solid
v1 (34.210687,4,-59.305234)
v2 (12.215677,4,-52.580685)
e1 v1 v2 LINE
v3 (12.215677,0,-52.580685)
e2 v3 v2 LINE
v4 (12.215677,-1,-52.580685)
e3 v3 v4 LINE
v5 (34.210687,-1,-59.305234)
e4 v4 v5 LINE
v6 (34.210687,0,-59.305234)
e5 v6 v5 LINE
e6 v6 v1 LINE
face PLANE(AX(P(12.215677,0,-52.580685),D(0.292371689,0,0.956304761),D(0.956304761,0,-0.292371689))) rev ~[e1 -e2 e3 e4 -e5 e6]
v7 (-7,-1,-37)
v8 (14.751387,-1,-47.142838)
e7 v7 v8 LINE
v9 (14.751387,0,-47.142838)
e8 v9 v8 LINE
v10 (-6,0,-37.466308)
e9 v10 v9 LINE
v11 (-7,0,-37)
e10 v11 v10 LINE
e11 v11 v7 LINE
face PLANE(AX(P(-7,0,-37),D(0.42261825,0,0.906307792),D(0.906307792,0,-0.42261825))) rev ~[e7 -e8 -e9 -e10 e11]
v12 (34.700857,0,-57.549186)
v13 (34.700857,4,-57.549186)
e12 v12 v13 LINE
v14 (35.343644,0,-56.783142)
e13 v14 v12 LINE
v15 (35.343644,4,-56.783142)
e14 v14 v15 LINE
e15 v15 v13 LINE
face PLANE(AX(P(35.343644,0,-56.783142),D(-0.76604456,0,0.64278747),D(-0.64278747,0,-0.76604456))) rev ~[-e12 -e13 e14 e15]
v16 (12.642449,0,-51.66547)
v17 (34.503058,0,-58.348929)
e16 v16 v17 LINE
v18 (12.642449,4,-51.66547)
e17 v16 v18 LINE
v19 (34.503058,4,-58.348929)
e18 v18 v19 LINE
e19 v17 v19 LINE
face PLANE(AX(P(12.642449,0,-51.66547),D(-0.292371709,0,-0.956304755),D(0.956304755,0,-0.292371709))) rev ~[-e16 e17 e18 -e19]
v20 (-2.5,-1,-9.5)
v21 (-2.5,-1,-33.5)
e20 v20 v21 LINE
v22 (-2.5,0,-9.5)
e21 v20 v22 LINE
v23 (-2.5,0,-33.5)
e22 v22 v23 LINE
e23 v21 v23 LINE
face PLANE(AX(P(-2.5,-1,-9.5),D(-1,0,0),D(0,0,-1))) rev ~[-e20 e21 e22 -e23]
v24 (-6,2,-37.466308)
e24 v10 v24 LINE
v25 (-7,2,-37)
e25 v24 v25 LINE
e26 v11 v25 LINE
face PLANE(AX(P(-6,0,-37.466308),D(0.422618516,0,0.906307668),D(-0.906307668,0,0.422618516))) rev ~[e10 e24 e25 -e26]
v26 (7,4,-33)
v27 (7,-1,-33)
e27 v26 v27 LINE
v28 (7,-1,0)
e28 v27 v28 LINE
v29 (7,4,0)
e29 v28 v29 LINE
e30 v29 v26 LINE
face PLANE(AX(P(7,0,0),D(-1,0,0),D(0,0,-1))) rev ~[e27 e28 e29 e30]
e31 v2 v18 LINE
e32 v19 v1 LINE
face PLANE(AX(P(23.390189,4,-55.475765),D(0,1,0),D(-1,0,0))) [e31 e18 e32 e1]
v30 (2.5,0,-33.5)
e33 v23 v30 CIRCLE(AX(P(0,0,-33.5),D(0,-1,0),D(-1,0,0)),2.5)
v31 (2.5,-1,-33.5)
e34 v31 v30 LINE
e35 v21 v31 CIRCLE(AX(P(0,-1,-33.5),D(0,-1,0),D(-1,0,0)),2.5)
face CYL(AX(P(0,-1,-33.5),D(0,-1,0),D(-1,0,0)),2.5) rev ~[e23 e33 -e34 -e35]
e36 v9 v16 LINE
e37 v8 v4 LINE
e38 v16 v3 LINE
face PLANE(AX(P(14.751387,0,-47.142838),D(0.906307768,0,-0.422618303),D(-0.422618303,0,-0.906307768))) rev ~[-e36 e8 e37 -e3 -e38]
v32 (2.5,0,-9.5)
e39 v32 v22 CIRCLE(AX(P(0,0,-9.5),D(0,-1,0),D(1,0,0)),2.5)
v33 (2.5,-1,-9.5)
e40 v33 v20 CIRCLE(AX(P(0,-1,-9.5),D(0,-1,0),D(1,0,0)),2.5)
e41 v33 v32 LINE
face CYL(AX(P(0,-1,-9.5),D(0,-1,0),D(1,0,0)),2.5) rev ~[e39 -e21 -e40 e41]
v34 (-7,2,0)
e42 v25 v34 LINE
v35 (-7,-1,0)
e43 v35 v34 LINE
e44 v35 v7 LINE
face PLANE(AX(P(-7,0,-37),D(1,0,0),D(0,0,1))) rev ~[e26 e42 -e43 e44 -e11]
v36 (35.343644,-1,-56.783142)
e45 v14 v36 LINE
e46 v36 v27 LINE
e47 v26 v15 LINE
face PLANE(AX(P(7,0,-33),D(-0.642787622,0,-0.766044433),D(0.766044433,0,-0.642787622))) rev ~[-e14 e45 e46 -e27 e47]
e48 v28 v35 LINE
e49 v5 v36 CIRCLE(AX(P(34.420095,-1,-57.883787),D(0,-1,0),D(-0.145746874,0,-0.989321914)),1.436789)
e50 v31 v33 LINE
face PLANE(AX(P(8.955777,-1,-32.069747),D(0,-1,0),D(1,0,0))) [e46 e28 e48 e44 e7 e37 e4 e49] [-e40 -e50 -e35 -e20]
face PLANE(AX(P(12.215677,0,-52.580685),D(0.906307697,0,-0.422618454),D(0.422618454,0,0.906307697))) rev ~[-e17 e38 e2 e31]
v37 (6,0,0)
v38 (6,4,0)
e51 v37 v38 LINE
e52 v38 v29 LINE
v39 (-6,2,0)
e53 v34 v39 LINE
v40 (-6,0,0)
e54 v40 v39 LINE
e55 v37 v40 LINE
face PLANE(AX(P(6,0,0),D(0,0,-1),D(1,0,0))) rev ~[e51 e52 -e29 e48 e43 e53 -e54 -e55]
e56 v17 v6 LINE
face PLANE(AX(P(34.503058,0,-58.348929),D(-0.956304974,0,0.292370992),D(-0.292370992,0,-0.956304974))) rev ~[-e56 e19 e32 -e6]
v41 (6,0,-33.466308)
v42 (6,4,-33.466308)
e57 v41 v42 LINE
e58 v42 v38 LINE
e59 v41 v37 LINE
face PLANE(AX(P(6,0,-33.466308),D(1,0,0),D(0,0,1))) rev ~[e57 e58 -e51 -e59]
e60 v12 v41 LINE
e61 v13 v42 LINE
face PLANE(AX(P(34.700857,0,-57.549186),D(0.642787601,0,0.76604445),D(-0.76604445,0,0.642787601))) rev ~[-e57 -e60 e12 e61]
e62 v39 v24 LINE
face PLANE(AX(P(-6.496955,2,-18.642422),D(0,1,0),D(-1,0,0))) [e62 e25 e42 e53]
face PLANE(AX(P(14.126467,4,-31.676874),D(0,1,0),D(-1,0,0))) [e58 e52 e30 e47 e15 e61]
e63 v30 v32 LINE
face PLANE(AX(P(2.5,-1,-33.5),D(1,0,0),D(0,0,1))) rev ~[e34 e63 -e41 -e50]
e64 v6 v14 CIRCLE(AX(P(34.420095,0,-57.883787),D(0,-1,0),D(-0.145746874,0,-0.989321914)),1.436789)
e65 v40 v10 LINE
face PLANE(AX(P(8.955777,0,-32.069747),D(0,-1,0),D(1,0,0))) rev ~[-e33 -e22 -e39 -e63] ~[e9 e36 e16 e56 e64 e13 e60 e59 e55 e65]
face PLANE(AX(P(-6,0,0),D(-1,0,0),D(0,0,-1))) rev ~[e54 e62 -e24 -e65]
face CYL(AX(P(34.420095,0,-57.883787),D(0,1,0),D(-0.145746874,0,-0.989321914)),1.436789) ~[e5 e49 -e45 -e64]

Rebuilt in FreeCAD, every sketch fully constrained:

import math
import FreeCAD as App
import Part
import Sketcher
from FreeCAD import Vector
Q = App.Units.Quantity


def add_polygon(sketch, points):
    """Adds a closed chain of lines whose ends are joined by coincident constraints."""
    first, n = sketch.GeometryCount, len(points)
    for a, b in zip(points, points[1:] + points[:1]):
        sketch.addGeometry(Part.LineSegment(App.Vector(*a, 0), App.Vector(*b, 0)), False)
    for i in range(n):
        sketch.addConstraint(Sketcher.Constraint("Coincident", first + i, 2, first + (i + 1) % n, 1))

doc = App.newDocument("Part")
params = doc.addObject("Spreadsheet::Sheet", "Params")
for row, (alias, value) in enumerate([
    ("sketch1_width", "14 mm"),
    ("sketch1_height", "33 mm"),
    ("sketch1_height2", "37 mm"),
    ("sketch1_length", "24 mm"),
    ("sketch1_length2", "6 mm"),
    ("pad1_length", "1 mm"),
    ("sketch2_width", "1 mm"),
    ("sketch2_height", "37 mm"),
    ("pad2_length", "2 mm"),
    ("sketch3_width", "1 mm"),
    ("sketch3_height", "33 mm"),
    ("sketch3_length", "37 mm"),
    ("sketch3_length2", "0.999999 mm"),
    ("sketch3_length3", "23.000001 mm"),
    ("pad3_length", "4 mm"),
    ("sketch4_radius", "2.5 mm"),
    ("sketch4_height", "24 mm"),
    ("pocket1_length", "25 mm"),
], start=1):
    params.set(f"A{row}", alias)
    params.set(f"B{row}", "=" + value)
    params.setAlias(f"B{row}", alias)

body = doc.addObject("PartDesign::Body", "Body")

# Sketch on XZ plane
sketch1 = body.newObject("Sketcher::SketchObject", "Sketch")
sketch1.AttachmentSupport = (doc.getObject("XZ_Plane"), [""])
sketch1.MapMode = "FlatFace"
sketch1.addGeometry([
    Part.LineSegment(Vector(7, -33, 0), Vector(7, 0, 0)),  # 0
    Part.LineSegment(Vector(7, 0, 0), Vector(-7, 0, 0)),  # 1
    Part.LineSegment(Vector(-7, 0, 0), Vector(-7, -37, 0)),  # 2
    Part.LineSegment(Vector(-7, -37, 0), Vector(14.8, -47.1, 0)),  # 3
    Part.LineSegment(Vector(14.8, -47.1, 0), Vector(12.2, -52.6, 0)),  # 4
    Part.LineSegment(Vector(12.2, -52.6, 0), Vector(34.2, -59.3, 0)),  # 5
    Part.ArcOfCircle(Part.Circle(Vector(34.4, -57.9, 0), Vector(0, 0, 1), 1.4), math.radians(-98), math.radians(50)),  # 6
    Part.LineSegment(Vector(35.3, -56.8, 0), Vector(7, -33, 0)),  # 7
], False)
sketch1.addConstraint([
    Sketcher.Constraint("Coincident", 0, 2, 1, 1),
    Sketcher.Constraint("Coincident", 1, 2, 2, 1),
    Sketcher.Constraint("Coincident", 2, 2, 3, 1),
    Sketcher.Constraint("Coincident", 3, 2, 4, 1),
    Sketcher.Constraint("Coincident", 4, 2, 5, 1),
    Sketcher.Constraint("Coincident", 5, 2, 6, 1),
    Sketcher.Constraint("Tangent", 6, 2, 7, 1),
    Sketcher.Constraint("Coincident", 7, 2, 0, 1),
    Sketcher.Constraint("Vertical", 0),
    Sketcher.Constraint("Horizontal", 1),
    Sketcher.Constraint("Vertical", 2),
    Sketcher.Constraint("Symmetric", 0, 2, 1, 2, -1, 1),
    Sketcher.Constraint("Perpendicular", 3, 4),
    Sketcher.Constraint("DistanceX", 1, 2, 1, 1, 14.0),
    Sketcher.Constraint("DistanceY", 0, 1, 0, 2, 33.0),
    Sketcher.Constraint("DistanceY", 2, 2, 2, 1, 37.0),
    Sketcher.Constraint("Angle", 3, Q("-24.999999 deg")),
    Sketcher.Constraint("Angle", 5, Q("-16.999999 deg")),
    Sketcher.Constraint("Angle", 7, Q("139.999999 deg")),
    Sketcher.Constraint("Distance", 3, 24.0),
    Sketcher.Constraint("Distance", 4, 6.0),
    Sketcher.Constraint("Distance", 5, 23.000001),
    Sketcher.Constraint("Distance", 7, 37.0),
])
sketch1.setExpression("Constraints[13]", "Params.sketch1_width")
sketch1.setExpression("Constraints[14]", "Params.sketch1_height")
sketch1.setExpression("Constraints[15]", "Params.sketch1_height2")
sketch1.setExpression("Constraints[19]", "Params.sketch1_length")
sketch1.setExpression("Constraints[20]", "Params.sketch1_length2")
pad1 = body.newObject("PartDesign::Pad", "Pad")
pad1.Profile = sketch1
pad1.setExpression("Length", "Params.pad1_length")

# Sketch on XZ plane
sketch2 = body.newObject("Sketcher::SketchObject", "Sketch001")
sketch2.AttachmentSupport = (doc.getObject("XZ_Plane"), [""])
sketch2.MapMode = "FlatFace"
add_polygon(sketch2, [(-7, -37), (-7, 0), (-6, 0), (-6, -37.5)])  # lines 0-3
sketch2.addConstraint([
    Sketcher.Constraint("Vertical", 0),
    Sketcher.Constraint("Horizontal", 1),
    Sketcher.Constraint("Vertical", 2),
    Sketcher.Constraint("PointOnObject", 0, 2, -1),
    Sketcher.Constraint("DistanceX", 1, 1, 1, 2, 1.0),
    Sketcher.Constraint("DistanceY", 0, 1, 0, 2, 37.0),
    Sketcher.Constraint("Angle", 3, Q("154.999984 deg")),
    Sketcher.Constraint("DistanceX", 0, 2, -1, 1, 7.0),
])
sketch2.setExpression("Constraints[8]", "Params.sketch2_width")
sketch2.setExpression("Constraints[9]", "Params.sketch2_height")
pad2 = body.newObject("PartDesign::Pad", "Pad001")
pad2.Profile = sketch2
pad2.setExpression("Length", "Params.pad2_length")
pad2.Reversed = True

# Sketch on XZ plane
sketch3 = body.newObject("Sketcher::SketchObject", "Sketch002")
sketch3.AttachmentSupport = (doc.getObject("XZ_Plane"), [""])
sketch3.MapMode = "FlatFace"
add_polygon(sketch3, [(34.7, -57.5), (6, -33.5), (6, 0), (7, 0), (7, -33), (35.3, -56.8)])  # lines 0-5
add_polygon(sketch3, [(12.2, -52.6), (12.6, -51.7), (34.5, -58.3), (34.2, -59.3)])  # lines 6-9
sketch3.addConstraint([
    Sketcher.Constraint("Vertical", 1),
    Sketcher.Constraint("Horizontal", 2),
    Sketcher.Constraint("Vertical", 3),
    Sketcher.Constraint("PointOnObject", 1, 2, -1),
    Sketcher.Constraint("Parallel", 0, 4),
    Sketcher.Constraint("Perpendicular", 4, 5),
    Sketcher.Constraint("Perpendicular", 7, 8),
    Sketcher.Constraint("Perpendicular", 8, 9),
    Sketcher.Constraint("Equal", 5, 8),
    Sketcher.Constraint("DistanceX", 2, 1, 2, 2, 1.0),
    Sketcher.Constraint("DistanceY", 3, 2, 3, 1, 33.0),
    Sketcher.Constraint("Angle", 0, Q("140.000001 deg")),
    Sketcher.Constraint("Angle", 6, Q("64.999988 deg")),
    Sketcher.Constraint("Angle", 7, Q("-17 deg")),
    Sketcher.Constraint("Distance", 4, 37.0),
    Sketcher.Constraint("Distance", 5, 0.999999),
    Sketcher.Constraint("Distance", 9, 23.000001),
    Sketcher.Constraint("DistanceX", -1, 1, 0, 2, 6.0),
    Sketcher.Constraint("DistanceX", 7, 2, 5, 2, 0.197799),
    Sketcher.Constraint("DistanceY", 6, 2, -1, 1, 51.66547),
])
sketch3.setExpression("Constraints[19]", "Params.sketch3_width")
sketch3.setExpression("Constraints[20]", "Params.sketch3_height")
sketch3.setExpression("Constraints[24]", "Params.sketch3_length")
sketch3.setExpression("Constraints[25]", "Params.sketch3_length2")
sketch3.setExpression("Constraints[26]", "Params.sketch3_length3")
pad3 = body.newObject("PartDesign::Pad", "Pad002")
pad3.Profile = sketch3
pad3.setExpression("Length", "Params.pad3_length")
pad3.Reversed = True

# Sketch on XZ plane
sketch4 = body.newObject("Sketcher::SketchObject", "Sketch003")
sketch4.AttachmentSupport = (doc.getObject("XZ_Plane"), [""])
sketch4.MapMode = "FlatFace"
sketch4.AttachmentOffset = App.Placement(Vector(0, 0, 1), App.Rotation())
sketch4.addGeometry([
    Part.ArcOfCircle(Part.Circle(Vector(0, -9.5, 0), Vector(0, 0, 1), 2.5), math.radians(0), math.radians(180)),
    Part.LineSegment(Vector(-2.5, -9.5, 0), Vector(-2.5, -33.5, 0)),
    Part.ArcOfCircle(Part.Circle(Vector(0, -33.5, 0), Vector(0, 0, 1), 2.5), math.radians(180), math.radians(360)),
    Part.LineSegment(Vector(2.5, -33.5, 0), Vector(2.5, -9.5, 0)),
], False)
sketch4.addConstraint([
    Sketcher.Constraint("Tangent", 0, 2, 1, 1),
    Sketcher.Constraint("Tangent", 1, 2, 2, 1),
    Sketcher.Constraint("Tangent", 2, 2, 3, 1),
    Sketcher.Constraint("Tangent", 3, 2, 0, 1),
    Sketcher.Constraint("Vertical", 1),
    Sketcher.Constraint("Vertical", 3),
    Sketcher.Constraint("PointOnObject", 0, 3, -2),
    Sketcher.Constraint("Radius", 0, 2.5),
    Sketcher.Constraint("DistanceY", 1, 2, 1, 1, 24.0),
    Sketcher.Constraint("DistanceY", 0, 3, -1, 1, 9.5),
])
sketch4.setExpression("Constraints[7]", "Params.sketch4_radius")
sketch4.setExpression("Constraints[8]", "Params.sketch4_height")
pocket1 = body.newObject("PartDesign::Pocket", "Pocket")
pocket1.Profile = sketch4
pocket1.setExpression("Length", "Params.pocket1_length")

doc.recompute()
